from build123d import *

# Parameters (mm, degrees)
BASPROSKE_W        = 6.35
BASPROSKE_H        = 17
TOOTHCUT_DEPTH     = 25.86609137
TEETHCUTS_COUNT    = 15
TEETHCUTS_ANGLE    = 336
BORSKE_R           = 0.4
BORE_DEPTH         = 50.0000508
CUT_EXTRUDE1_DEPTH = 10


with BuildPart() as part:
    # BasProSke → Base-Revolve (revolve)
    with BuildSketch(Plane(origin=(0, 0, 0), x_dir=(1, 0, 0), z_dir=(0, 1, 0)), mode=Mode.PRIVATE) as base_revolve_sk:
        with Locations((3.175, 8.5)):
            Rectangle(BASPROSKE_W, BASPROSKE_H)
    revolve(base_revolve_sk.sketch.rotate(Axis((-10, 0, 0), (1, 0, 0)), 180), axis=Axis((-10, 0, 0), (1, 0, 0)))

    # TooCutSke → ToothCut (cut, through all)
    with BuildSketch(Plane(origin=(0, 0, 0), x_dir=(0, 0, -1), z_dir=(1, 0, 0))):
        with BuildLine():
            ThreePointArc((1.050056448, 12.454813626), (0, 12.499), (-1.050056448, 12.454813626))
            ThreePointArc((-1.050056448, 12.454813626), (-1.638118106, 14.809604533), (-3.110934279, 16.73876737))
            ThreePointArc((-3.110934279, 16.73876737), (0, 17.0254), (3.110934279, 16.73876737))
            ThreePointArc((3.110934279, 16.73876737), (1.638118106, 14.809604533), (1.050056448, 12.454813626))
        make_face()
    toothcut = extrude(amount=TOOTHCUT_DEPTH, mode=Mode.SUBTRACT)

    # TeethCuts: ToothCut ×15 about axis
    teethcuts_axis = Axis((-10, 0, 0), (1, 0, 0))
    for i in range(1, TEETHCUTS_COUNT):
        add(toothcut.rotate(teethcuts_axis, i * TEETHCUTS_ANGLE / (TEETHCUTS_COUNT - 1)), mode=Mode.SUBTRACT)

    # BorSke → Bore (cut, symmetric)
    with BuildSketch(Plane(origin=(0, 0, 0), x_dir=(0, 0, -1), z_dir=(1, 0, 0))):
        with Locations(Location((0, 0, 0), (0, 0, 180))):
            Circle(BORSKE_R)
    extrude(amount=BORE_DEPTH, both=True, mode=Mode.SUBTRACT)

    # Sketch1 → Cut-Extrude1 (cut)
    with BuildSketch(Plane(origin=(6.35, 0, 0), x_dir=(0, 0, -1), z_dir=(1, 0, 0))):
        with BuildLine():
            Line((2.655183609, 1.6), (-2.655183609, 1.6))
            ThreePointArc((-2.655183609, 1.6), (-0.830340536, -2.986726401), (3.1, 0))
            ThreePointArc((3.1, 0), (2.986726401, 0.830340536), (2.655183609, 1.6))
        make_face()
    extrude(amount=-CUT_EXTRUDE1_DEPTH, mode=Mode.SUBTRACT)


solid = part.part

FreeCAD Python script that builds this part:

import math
import FreeCAD as App
import Part
import Sketcher
from FreeCAD import Vector

doc = App.newDocument("Part")
body = doc.addObject("PartDesign::Body", "Body")

# Sketch on XZ plane
sketch1 = doc.addObject("Sketcher::SketchObject", "Sketch")
body.addObject(sketch1)
sketch1.AttachmentSupport = (doc.XZ_Plane, [""])
sketch1.MapMode = "FlatFace"
sketch1.addGeometry(Part.LineSegment(Vector(0, -17, 0), Vector(0, 0, 0)), False)
sketch1.addGeometry(Part.LineSegment(Vector(0, 0, 0), Vector(6, 0, 0)), False)
sketch1.addGeometry(Part.LineSegment(Vector(6, 0, 0), Vector(6, -17, 0)), False)
sketch1.addGeometry(Part.LineSegment(Vector(6, -17, 0), Vector(0, -17, 0)), False)
sketch1.addConstraint(Sketcher.Constraint("Coincident", 0, 2, 1, 1))
sketch1.addConstraint(Sketcher.Constraint("Coincident", 1, 2, 2, 1))
sketch1.addConstraint(Sketcher.Constraint("Coincident", 2, 2, 3, 1))
sketch1.addConstraint(Sketcher.Constraint("Coincident", 3, 2, 0, 1))
sketch1.addConstraint(Sketcher.Constraint("Vertical", 0))
sketch1.addConstraint(Sketcher.Constraint("Horizontal", 1))
sketch1.addConstraint(Sketcher.Constraint("Vertical", 2))
sketch1.addConstraint(Sketcher.Constraint("Horizontal", 3))
sketch1.addConstraint(Sketcher.Constraint("Coincident", 0, 2, -1, 1))
sketch1.addConstraint(Sketcher.Constraint("DistanceY", 0, 1, 0, 2, 17.0))
sketch1.addConstraint(Sketcher.Constraint("DistanceX", 1, 1, 1, 2, 6.35))
revolution = doc.addObject("PartDesign::Revolution", "Revolution")
body.addObject(revolution)
revolution.Profile = sketch1
revolution.ReferenceAxis = (sketch1, ["H_Axis"])
revolution.Angle = 360

# Sketch on YZ plane
sketch2 = doc.addObject("Sketcher::SketchObject", "Sketch001")
body.addObject(sketch2)
sketch2.AttachmentSupport = (doc.YZ_Plane, [""])
sketch2.MapMode = "FlatFace"
sketch2.addGeometry(Part.ArcOfCircle(Part.Circle(Vector(0, 0, 0), Vector(0, 0, 1), 12.5), math.radians(-4.82), math.radians(4.82)), False)
sketch2.addGeometry(Part.ArcOfCircle(Part.Circle(Vector(12.2, -7, 0), Vector(0, 0, 1), 6), math.radians(41), math.radians(88)), False)
sketch2.addGeometry(Part.ArcOfCircle(Part.Circle(Vector(0, 0, 0), Vector(0, 0, 1), 17), math.radians(-11), math.radians(11)), False)
sketch2.addGeometry(Part.ArcOfCircle(Part.Circle(Vector(12.2, 7, 0), Vector(0, 0, 1), 6), math.radians(-88), math.radians(-41)), False)
sketch2.addConstraint(Sketcher.Constraint("Coincident", 0, 1, 1, 2))
sketch2.addConstraint(Sketcher.Constraint("Coincident", 1, 1, 2, 1))
sketch2.addConstraint(Sketcher.Constraint("Coincident", 2, 2, 3, 2))
sketch2.addConstraint(Sketcher.Constraint("Coincident", 3, 1, 0, 2))
sketch2.addConstraint(Sketcher.Constraint("Coincident", 0, 3, -1, 1))
sketch2.addConstraint(Sketcher.Constraint("Coincident", 2, 3, -1, 1))
sketch2.addConstraint(Sketcher.Constraint("Equal", 1, 3))
sketch2.addConstraint(Sketcher.Constraint("Symmetric", 1, 3, 3, 3, -1))
sketch2.addConstraint(Sketcher.Constraint("Radius", 1, 6.0))
sketch2.addConstraint(Sketcher.Constraint("Radius", 0, 12.499))
sketch2.addConstraint(Sketcher.Constraint("Radius", 2, 17.0254))
sketch2.addConstraint(Sketcher.Constraint("DistanceY", 1, 3, 3, 3, 14.089999))
sketch2.addConstraint(Sketcher.Constraint("DistanceX", -1, 1, 1, 3, 12.208521))
pocket1 = doc.addObject("PartDesign::Pocket", "Pocket")
body.addObject(pocket1)
pocket1.Profile = sketch2
pocket1.Type = "ThroughAll"
pocket1.Reversed = True
doc.recompute()

polarpattern = doc.addObject("PartDesign::PolarPattern", "PolarPattern")
body.addObject(polarpattern)
polarpattern.Originals = [pocket1]
polarpattern.Axis = (doc.X_Axis, [""])
polarpattern.Angle = 360
polarpattern.Occurrences = 15
body.Tip = polarpattern

# Sketch on YZ plane
sketch3 = doc.addObject("Sketcher::SketchObject", "Sketch002")
body.addObject(sketch3)
sketch3.AttachmentSupport = (doc.YZ_Plane, [""])
sketch3.MapMode = "FlatFace"
sketch3.addGeometry(Part.Circle(Vector(0, 0, 0), Vector(0, 0, 1), 0.4), False)
sketch3.addConstraint(Sketcher.Constraint("Coincident", 0, 3, -1, 1))
sketch3.addConstraint(Sketcher.Constraint("Diameter", 0, 0.8))
pocket2 = doc.addObject("PartDesign::Pocket", "Pocket001")
body.addObject(pocket2)
pocket2.Profile = sketch3
pocket2.Length = 100.000102
pocket2.Midplane = True

# Sketch on YZ plane
sketch4 = doc.addObject("Sketcher::SketchObject", "Sketch003")
body.addObject(sketch4)
sketch4.AttachmentSupport = (doc.YZ_Plane, [""])
sketch4.MapMode = "FlatFace"
sketch4.AttachmentOffset = App.Placement(Vector(0, 0, 6.35), App.Rotation())
sketch4.addGeometry(Part.LineSegment(Vector(1.6, -2.7, 0), Vector(1.6, 2.7, 0)), False)
sketch4.addGeometry(Part.ArcOfCircle(Part.Circle(Vector(0, 0, 0), Vector(0, 0, 1), 3.1), math.radians(59), math.radians(270)), False)
sketch4.addGeometry(Part.ArcOfCircle(Part.Circle(Vector(0, 0, 0), Vector(0, 0, 1), 3.1), math.radians(-90), math.radians(-59)), False)
sketch4.addConstraint(Sketcher.Constraint("Coincident", 0, 2, 1, 1))
sketch4.addConstraint(Sketcher.Constraint("Tangent", 1, 2, 2, 1))
sketch4.addConstraint(Sketcher.Constraint("Coincident", 2, 2, 0, 1))
sketch4.addConstraint(Sketcher.Constraint("Vertical", 0))
sketch4.addConstraint(Sketcher.Constraint("Coincident", 1, 3, -1, 1))
sketch4.addConstraint(Sketcher.Constraint("Equal", 1, 2))
sketch4.addConstraint(Sketcher.Constraint("PointOnObject", 1, 2, -2))
sketch4.addConstraint(Sketcher.Constraint("Radius", 1, 3.1))
sketch4.addConstraint(Sketcher.Constraint("DistanceX", -1, 1, 0, 2, 1.6))
pocket3 = doc.addObject("PartDesign::Pocket", "Pocket002")
body.addObject(pocket3)
pocket3.Profile = sketch4
pocket3.Length = 10

doc.recompute()
